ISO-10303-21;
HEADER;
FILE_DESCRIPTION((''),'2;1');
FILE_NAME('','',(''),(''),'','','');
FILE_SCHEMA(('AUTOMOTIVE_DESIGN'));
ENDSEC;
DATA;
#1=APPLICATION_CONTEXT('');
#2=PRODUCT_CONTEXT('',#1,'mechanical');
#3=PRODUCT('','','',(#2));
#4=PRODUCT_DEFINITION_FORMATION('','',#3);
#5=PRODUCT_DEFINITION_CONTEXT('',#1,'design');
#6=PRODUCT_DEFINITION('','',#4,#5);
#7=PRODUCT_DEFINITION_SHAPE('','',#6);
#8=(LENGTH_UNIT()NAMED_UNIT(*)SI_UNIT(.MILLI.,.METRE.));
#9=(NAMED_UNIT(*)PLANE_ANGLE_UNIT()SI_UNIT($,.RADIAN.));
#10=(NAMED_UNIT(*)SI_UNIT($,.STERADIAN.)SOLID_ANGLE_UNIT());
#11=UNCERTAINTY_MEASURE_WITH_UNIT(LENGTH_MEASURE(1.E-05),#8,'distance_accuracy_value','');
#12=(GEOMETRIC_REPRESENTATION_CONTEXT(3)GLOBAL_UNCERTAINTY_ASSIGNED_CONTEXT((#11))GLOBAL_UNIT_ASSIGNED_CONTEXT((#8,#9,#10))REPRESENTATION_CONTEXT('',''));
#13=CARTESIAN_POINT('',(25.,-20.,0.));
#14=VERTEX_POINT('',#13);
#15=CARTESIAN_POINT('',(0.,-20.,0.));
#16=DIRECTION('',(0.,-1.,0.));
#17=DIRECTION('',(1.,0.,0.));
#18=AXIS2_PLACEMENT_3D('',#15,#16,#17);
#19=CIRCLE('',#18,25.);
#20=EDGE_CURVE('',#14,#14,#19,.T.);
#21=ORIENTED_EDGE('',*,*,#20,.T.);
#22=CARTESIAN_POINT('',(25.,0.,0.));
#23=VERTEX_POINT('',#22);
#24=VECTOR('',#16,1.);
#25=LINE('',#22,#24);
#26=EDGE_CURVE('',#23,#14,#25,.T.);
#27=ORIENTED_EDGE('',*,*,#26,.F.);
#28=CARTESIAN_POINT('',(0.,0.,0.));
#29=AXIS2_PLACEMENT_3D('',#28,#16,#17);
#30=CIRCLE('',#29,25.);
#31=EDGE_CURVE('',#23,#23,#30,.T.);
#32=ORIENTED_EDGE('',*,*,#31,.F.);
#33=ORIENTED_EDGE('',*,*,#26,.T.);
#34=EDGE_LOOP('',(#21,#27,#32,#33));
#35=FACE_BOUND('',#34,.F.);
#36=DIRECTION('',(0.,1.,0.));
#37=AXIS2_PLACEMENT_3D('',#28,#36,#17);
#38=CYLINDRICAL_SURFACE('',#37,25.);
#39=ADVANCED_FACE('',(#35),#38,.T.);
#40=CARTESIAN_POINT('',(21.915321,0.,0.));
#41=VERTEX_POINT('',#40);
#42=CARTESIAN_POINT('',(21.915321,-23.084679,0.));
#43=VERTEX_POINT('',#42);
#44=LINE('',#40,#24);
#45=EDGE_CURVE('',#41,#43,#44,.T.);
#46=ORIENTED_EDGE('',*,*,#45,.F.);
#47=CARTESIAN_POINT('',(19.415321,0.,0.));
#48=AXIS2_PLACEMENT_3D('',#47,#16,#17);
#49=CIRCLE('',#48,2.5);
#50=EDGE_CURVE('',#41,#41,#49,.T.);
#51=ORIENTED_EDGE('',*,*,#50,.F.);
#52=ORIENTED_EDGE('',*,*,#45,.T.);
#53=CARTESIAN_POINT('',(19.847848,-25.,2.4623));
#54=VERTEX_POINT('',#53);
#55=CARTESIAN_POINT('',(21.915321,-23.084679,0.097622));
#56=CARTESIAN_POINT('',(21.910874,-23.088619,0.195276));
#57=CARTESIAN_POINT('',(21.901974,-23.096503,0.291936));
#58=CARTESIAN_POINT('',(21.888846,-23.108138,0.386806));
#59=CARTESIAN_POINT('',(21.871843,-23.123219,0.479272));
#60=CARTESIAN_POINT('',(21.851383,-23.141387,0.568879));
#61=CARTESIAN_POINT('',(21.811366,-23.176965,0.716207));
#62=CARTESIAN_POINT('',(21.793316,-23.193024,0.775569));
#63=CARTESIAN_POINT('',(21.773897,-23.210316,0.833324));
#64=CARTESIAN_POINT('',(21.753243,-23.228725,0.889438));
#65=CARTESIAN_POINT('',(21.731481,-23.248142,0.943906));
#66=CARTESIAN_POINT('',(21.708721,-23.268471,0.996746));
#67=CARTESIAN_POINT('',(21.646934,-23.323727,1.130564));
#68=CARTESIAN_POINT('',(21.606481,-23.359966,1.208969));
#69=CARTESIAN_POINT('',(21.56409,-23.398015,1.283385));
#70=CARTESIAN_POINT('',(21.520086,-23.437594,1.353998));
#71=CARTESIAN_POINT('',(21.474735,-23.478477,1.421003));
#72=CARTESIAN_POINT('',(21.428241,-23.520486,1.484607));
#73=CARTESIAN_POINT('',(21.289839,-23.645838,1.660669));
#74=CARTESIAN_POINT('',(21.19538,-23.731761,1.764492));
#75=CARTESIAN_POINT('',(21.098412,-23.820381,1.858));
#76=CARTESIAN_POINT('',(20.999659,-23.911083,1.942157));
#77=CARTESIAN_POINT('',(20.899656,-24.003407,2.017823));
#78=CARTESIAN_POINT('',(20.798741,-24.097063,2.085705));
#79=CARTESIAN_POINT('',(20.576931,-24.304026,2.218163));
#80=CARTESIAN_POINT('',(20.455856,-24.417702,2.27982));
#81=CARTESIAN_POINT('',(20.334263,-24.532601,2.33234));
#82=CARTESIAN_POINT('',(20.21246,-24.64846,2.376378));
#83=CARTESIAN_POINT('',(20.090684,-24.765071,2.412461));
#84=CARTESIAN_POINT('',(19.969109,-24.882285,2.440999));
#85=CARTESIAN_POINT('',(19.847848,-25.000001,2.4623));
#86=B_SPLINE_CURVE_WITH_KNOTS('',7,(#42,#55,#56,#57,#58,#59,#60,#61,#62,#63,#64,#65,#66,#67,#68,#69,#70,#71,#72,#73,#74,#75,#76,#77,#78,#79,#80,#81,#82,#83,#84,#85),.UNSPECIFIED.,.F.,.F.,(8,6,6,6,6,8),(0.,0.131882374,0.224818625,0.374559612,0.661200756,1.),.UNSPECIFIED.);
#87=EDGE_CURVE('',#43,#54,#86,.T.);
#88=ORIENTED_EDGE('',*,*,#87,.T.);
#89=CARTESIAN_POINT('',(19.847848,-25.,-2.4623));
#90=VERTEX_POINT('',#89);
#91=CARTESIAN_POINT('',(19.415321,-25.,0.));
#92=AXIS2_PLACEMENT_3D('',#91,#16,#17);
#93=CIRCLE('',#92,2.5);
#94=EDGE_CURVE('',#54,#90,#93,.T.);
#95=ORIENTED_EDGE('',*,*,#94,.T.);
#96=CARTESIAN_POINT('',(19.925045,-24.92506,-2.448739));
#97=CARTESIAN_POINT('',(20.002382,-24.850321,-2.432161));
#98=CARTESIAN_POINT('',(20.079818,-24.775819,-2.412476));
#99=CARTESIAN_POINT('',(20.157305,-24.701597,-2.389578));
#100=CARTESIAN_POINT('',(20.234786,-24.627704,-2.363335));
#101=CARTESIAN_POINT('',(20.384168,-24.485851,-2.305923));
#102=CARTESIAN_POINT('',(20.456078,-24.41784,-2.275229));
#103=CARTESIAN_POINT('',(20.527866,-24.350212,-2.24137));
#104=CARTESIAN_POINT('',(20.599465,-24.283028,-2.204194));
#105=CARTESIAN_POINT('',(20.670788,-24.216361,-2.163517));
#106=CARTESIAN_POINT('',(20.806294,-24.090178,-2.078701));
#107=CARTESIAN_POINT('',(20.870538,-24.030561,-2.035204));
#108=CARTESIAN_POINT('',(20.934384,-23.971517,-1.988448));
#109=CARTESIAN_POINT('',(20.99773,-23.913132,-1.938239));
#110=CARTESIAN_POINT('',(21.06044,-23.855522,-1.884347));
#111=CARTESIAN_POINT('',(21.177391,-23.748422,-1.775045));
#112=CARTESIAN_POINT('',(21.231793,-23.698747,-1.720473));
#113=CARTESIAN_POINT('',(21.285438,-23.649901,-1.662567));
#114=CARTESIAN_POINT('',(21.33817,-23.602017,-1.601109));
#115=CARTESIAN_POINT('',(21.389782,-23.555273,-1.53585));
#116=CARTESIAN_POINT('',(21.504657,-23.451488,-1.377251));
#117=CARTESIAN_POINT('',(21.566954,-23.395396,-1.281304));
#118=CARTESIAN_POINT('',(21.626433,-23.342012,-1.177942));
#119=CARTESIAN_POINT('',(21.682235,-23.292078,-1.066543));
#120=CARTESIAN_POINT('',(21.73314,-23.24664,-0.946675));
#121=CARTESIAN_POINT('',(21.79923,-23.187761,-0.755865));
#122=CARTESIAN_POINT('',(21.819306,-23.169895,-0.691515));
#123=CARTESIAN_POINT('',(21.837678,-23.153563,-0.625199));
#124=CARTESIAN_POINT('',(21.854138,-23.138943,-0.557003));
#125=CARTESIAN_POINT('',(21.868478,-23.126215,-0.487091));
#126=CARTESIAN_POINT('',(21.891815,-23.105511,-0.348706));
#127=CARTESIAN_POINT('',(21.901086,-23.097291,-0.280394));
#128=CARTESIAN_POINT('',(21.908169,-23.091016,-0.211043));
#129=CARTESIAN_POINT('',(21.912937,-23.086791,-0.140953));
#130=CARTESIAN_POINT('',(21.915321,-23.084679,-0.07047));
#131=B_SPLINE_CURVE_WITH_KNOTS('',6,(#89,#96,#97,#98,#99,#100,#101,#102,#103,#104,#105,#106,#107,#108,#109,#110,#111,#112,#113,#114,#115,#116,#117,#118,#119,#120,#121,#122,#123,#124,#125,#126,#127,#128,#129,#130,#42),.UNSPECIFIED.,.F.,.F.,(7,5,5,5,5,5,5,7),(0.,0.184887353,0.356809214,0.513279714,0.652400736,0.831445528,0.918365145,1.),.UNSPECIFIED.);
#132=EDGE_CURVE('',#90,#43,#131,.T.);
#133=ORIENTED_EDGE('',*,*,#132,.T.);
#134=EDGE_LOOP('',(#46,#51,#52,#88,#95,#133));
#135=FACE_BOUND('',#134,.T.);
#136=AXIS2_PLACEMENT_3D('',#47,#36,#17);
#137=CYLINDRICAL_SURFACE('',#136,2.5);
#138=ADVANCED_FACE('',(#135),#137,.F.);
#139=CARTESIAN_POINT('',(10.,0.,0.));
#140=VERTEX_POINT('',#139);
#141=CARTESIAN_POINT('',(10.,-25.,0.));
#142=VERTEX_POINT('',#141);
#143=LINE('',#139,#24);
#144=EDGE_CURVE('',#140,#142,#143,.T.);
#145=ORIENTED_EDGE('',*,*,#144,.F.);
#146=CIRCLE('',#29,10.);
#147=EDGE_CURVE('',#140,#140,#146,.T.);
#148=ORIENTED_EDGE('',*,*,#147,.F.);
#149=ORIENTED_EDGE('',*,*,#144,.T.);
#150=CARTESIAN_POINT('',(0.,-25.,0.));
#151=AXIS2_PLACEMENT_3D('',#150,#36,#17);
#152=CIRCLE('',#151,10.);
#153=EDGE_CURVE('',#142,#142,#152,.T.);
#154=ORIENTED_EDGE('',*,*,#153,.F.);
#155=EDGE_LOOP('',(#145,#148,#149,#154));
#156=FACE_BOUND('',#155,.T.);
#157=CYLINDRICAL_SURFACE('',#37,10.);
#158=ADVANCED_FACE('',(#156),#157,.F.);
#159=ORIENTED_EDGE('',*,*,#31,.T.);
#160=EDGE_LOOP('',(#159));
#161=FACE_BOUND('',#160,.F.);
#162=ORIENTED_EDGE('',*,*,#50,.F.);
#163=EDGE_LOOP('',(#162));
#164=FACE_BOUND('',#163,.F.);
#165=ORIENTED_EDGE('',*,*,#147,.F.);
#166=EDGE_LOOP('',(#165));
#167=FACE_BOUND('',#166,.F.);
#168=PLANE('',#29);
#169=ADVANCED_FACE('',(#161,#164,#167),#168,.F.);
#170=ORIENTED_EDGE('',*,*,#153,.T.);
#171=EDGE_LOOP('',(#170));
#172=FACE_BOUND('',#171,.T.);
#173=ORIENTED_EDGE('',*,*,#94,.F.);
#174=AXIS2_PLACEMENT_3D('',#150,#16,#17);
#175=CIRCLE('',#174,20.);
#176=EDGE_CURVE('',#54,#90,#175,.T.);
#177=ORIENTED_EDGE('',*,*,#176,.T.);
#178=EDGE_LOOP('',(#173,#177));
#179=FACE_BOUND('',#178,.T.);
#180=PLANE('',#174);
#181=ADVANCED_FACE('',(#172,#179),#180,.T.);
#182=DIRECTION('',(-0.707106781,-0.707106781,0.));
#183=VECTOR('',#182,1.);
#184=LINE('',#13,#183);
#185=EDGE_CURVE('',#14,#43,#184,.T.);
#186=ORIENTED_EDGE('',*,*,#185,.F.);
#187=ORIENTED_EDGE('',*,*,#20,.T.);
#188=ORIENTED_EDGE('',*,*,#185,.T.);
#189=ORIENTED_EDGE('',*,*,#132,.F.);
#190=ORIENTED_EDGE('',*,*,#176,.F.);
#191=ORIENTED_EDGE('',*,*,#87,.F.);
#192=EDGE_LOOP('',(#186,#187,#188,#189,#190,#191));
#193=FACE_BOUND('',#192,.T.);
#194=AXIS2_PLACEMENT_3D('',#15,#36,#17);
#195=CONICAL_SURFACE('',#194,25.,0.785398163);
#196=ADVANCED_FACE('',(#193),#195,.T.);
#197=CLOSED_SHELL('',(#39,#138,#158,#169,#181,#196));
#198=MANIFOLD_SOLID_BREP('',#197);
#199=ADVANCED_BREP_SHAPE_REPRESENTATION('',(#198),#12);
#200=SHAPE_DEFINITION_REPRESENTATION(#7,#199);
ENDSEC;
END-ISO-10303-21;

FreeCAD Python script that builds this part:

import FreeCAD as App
import Part
import Sketcher
Q = App.Units.Quantity


def edges_at(feature, points):
    """Names of the edges that pass closest to the given points."""
    edges = feature.Shape.Edges
    near = lambda p: min(range(len(edges)), key=lambda i: edges[i].distToShape(Part.Vertex(*p))[0])
    return sorted({f"Edge{near(p) + 1}" for p in points})

doc = App.newDocument("Part")
body = doc.addObject("PartDesign::Body", "Body")

sketch1 = body.newObject("Sketcher::SketchObject", "Sketch")
sketch1.AttachmentSupport = (doc.getObject("XZ_Plane"), [""])
sketch1.MapMode = "FlatFace"
sketch1.addGeometry(Part.Circle(App.Vector(0, 0, 0), App.Vector(0, 0, 1), 25), False)
sketch1.addConstraint(Sketcher.Constraint("Coincident", 0, 3, -1, 1))
sketch1.addConstraint(Sketcher.Constraint("Diameter", 0, Q("50 mm")))
pad1 = body.newObject("PartDesign::Pad", "Pad")
pad1.Profile = sketch1
pad1.Length = 25

sketch2 = body.newObject("Sketcher::SketchObject", "Sketch001")
sketch2.AttachmentSupport = (doc.getObject("XZ_Plane"), [""])
sketch2.MapMode = "FlatFace"
sketch2.addGeometry(Part.Circle(App.Vector(0, 0, 0), App.Vector(0, 0, 1), 10), False)
sketch2.addConstraint(Sketcher.Constraint("Coincident", 0, 3, -1, 1))
sketch2.addConstraint(Sketcher.Constraint("Diameter", 0, Q("20 mm")))
pocket1 = body.newObject("PartDesign::Pocket", "Pocket")
pocket1.Profile = sketch2
pocket1.Length = 50
pocket1.Reversed = True
doc.recompute()

chamfer = body.newObject("PartDesign::Chamfer", "Chamfer")
chamfer.Base = (pocket1, edges_at(pocket1, [(-25, -25, 0)]))
chamfer.Size = 5

sketch3 = body.newObject("Sketcher::SketchObject", "Sketch002")
sketch3.AttachmentSupport = (doc.getObject("XZ_Plane"), [""])
sketch3.MapMode = "FlatFace"
sketch3.addGeometry(Part.Circle(App.Vector(19.4, 0, 0), App.Vector(0, 0, 1), 2.5), False)
sketch3.addConstraint(Sketcher.Constraint("PointOnObject", 0, 3, -1))
sketch3.addConstraint(Sketcher.Constraint("Diameter", 0, Q("5 mm")))
sketch3.addConstraint(Sketcher.Constraint("DistanceX", -1, 1, 0, 3, Q("19.415321 mm")))
pocket2 = body.newObject("PartDesign::Pocket", "Pocket001")
pocket2.Profile = sketch3
pocket2.Length = 25
pocket2.Reversed = True

doc.recompute()
